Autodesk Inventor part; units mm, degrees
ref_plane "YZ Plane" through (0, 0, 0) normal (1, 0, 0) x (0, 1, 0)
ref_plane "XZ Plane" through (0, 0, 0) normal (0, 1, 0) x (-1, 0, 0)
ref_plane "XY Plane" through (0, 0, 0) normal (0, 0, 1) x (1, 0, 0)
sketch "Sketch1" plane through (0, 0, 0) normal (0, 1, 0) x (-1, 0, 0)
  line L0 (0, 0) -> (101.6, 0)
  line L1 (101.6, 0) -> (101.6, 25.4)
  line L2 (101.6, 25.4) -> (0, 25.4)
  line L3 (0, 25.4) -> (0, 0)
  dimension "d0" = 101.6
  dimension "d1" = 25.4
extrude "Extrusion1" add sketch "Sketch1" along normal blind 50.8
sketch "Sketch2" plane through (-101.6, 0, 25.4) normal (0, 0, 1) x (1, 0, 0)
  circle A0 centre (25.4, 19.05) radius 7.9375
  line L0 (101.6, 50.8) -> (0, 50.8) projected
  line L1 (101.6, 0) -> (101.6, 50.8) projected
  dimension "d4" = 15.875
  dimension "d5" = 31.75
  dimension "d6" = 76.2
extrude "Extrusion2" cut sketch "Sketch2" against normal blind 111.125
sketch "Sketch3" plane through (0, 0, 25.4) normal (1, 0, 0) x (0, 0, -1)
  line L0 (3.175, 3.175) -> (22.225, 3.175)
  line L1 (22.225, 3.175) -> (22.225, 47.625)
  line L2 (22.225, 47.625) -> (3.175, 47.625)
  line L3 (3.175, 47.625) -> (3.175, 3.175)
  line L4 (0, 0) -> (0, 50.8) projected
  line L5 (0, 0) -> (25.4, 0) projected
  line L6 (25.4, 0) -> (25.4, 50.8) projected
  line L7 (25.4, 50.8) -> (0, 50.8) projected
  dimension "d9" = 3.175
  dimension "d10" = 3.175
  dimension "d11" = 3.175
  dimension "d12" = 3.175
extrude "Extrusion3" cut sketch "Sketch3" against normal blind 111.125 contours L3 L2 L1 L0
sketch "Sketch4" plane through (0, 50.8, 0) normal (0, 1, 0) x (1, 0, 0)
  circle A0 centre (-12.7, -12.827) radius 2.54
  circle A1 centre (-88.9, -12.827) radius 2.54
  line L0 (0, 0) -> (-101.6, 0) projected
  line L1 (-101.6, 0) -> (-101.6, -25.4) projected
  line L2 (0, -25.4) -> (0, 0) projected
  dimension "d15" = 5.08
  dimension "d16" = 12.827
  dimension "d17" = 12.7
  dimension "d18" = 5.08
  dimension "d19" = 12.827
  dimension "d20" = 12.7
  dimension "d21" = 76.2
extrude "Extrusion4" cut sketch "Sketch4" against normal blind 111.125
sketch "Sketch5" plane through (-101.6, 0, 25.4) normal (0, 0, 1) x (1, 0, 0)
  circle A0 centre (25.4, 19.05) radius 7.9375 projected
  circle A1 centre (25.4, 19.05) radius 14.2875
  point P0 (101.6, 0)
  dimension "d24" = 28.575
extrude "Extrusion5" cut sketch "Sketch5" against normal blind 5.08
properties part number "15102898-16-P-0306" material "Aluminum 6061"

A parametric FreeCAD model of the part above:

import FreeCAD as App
import Part
import Sketcher
Q = App.Units.Quantity

doc = App.newDocument("Part")
body = doc.addObject("PartDesign::Body", "Body")

sketch1 = body.newObject("Sketcher::SketchObject", "Sketch")
sketch1.AttachmentSupport = (doc.getObject("XZ_Plane"), [""])
sketch1.MapMode = "FlatFace"
sketch1.addGeometry(Part.LineSegment(App.Vector(0, 25, 0), App.Vector(0, 0, 0)), False)
sketch1.addGeometry(Part.LineSegment(App.Vector(0, 0, 0), App.Vector(-102, 0, 0)), False)
sketch1.addGeometry(Part.LineSegment(App.Vector(-102, 0, 0), App.Vector(-102, 25, 0)), False)
sketch1.addGeometry(Part.LineSegment(App.Vector(-102, 25, 0), App.Vector(0, 25, 0)), False)
sketch1.addConstraint(Sketcher.Constraint("Coincident", 0, 2, 1, 1))
sketch1.addConstraint(Sketcher.Constraint("Coincident", 1, 2, 2, 1))
sketch1.addConstraint(Sketcher.Constraint("Coincident", 2, 2, 3, 1))
sketch1.addConstraint(Sketcher.Constraint("Coincident", 3, 2, 0, 1))
sketch1.addConstraint(Sketcher.Constraint("Vertical", 0))
sketch1.addConstraint(Sketcher.Constraint("Horizontal", 1))
sketch1.addConstraint(Sketcher.Constraint("Vertical", 2))
sketch1.addConstraint(Sketcher.Constraint("Horizontal", 3))
sketch1.addConstraint(Sketcher.Constraint("Coincident", 0, 2, -1, 1))
sketch1.addConstraint(Sketcher.Constraint("DistanceX", 1, 2, 1, 1, Q("4 in")))
sketch1.addConstraint(Sketcher.Constraint("DistanceY", 0, 2, 0, 1, Q("1 in")))
pad1 = body.newObject("PartDesign::Pad", "Pad")
pad1.Profile = sketch1
pad1.Length = Q("2 in")
pad1.Reversed = True

sketch2 = body.newObject("Sketcher::SketchObject", "Sketch001")
sketch2.AttachmentSupport = (doc.getObject("XY_Plane"), [""])
sketch2.MapMode = "FlatFace"
sketch2.AttachmentOffset = App.Placement(App.Vector(0, 0, 1 * 25.4), App.Rotation())
sketch2.addGeometry(Part.Circle(App.Vector(-76, 19, 0), App.Vector(0, 0, 1), 8), False)
sketch2.addConstraint(Sketcher.Constraint("Diameter", 0, Q("0.625 in")))
sketch2.addConstraint(Sketcher.Constraint("DistanceX", 0, 3, -1, 1, Q("3 in")))
sketch2.addConstraint(Sketcher.Constraint("DistanceY", -1, 1, 0, 3, Q("0.75 in")))
pocket1 = body.newObject("PartDesign::Pocket", "Pocket")
pocket1.Profile = sketch2
pocket1.Length = Q("4.375 in")

sketch3 = body.newObject("Sketcher::SketchObject", "Sketch002")
sketch3.AttachmentSupport = (doc.getObject("YZ_Plane"), [""])
sketch3.MapMode = "FlatFace"
sketch3.addGeometry(Part.LineSegment(App.Vector(48, 22, 0), App.Vector(3, 22, 0)), False)
sketch3.addGeometry(Part.LineSegment(App.Vector(3, 22, 0), App.Vector(3, 3, 0)), False)
sketch3.addGeometry(Part.LineSegment(App.Vector(3, 3, 0), App.Vector(48, 3, 0)), False)
sketch3.addGeometry(Part.LineSegment(App.Vector(48, 3, 0), App.Vector(48, 22, 0)), False)
sketch3.addConstraint(Sketcher.Constraint("Coincident", 0, 2, 1, 1))
sketch3.addConstraint(Sketcher.Constraint("Coincident", 1, 2, 2, 1))
sketch3.addConstraint(Sketcher.Constraint("Coincident", 2, 2, 3, 1))
sketch3.addConstraint(Sketcher.Constraint("Coincident", 3, 2, 0, 1))
sketch3.addConstraint(Sketcher.Constraint("Horizontal", 0))
sketch3.addConstraint(Sketcher.Constraint("Vertical", 1))
sketch3.addConstraint(Sketcher.Constraint("Horizontal", 2))
sketch3.addConstraint(Sketcher.Constraint("Vertical", 3))
sketch3.addConstraint(Sketcher.Constraint("DistanceX", -1, 1, 0, 2, Q("0.125 in")))
sketch3.addConstraint(Sketcher.Constraint("DistanceY", -1, 1, 1, 2, Q("0.125 in")))
sketch3.addConstraint(Sketcher.Constraint("DistanceX", 0, 2, 0, 1, Q("1.75 in")))
sketch3.addConstraint(Sketcher.Constraint("DistanceY", 1, 2, 1, 1, Q("0.75 in")))
pocket2 = body.newObject("PartDesign::Pocket", "Pocket001")
pocket2.Profile = sketch3
pocket2.Length = Q("4.375 in")

sketch4 = body.newObject("Sketcher::SketchObject", "Sketch003")
sketch4.AttachmentSupport = (doc.getObject("XZ_Plane"), [""])
sketch4.MapMode = "FlatFace"
sketch4.AttachmentOffset = App.Placement(App.Vector(0, 0, -2 * 25.4), App.Rotation())
sketch4.addGeometry(Part.Circle(App.Vector(-12.7, 12.8, 0), App.Vector(0, 0, 1), 2.5), False)
sketch4.addGeometry(Part.Circle(App.Vector(-88.9, 12.8, 0), App.Vector(0, 0, 1), 2.5), False)
sketch4.addConstraint(Sketcher.Constraint("Equal", 0, 1))
sketch4.addConstraint(Sketcher.Constraint("Horizontal", 0, 3, 1, 3))
sketch4.addConstraint(Sketcher.Constraint("Diameter", 0, Q("0.2 in")))
sketch4.addConstraint(Sketcher.Constraint("DistanceX", 1, 3, 0, 3, Q("3 in")))
sketch4.addConstraint(Sketcher.Constraint("DistanceX", 0, 3, -1, 1, Q("0.5 in")))
sketch4.addConstraint(Sketcher.Constraint("DistanceY", -1, 1, 0, 3, Q("0.505 in")))
pocket3 = body.newObject("PartDesign::Pocket", "Pocket002")
pocket3.Profile = sketch4
pocket3.Length = Q("4.375 in")
pocket3.Reversed = True

sketch5 = body.newObject("Sketcher::SketchObject", "Sketch004")
sketch5.AttachmentSupport = (doc.getObject("XY_Plane"), [""])
sketch5.MapMode = "FlatFace"
sketch5.AttachmentOffset = App.Placement(App.Vector(0, 0, 1 * 25.4), App.Rotation())
sketch5.addGeometry(Part.Circle(App.Vector(-76, 19, 0), App.Vector(0, 0, 1), 14), False)
sketch5.addGeometry(Part.Circle(App.Vector(-76, 19, 0), App.Vector(0, 0, 1), 8), False)
sketch5.addConstraint(Sketcher.Constraint("Coincident", 1, 3, 0, 3))
sketch5.addConstraint(Sketcher.Constraint("Diameter", 0, Q("1.125 in")))
sketch5.addConstraint(Sketcher.Constraint("Diameter", 1, Q("0.625 in")))
sketch5.addConstraint(Sketcher.Constraint("DistanceX", 0, 3, -1, 1, Q("3 in")))
sketch5.addConstraint(Sketcher.Constraint("DistanceY", -1, 1, 0, 3, Q("0.75 in")))
pocket4 = body.newObject("PartDesign::Pocket", "Pocket003")
pocket4.Profile = sketch5
pocket4.Length = Q("0.2 in")

doc.recompute()
